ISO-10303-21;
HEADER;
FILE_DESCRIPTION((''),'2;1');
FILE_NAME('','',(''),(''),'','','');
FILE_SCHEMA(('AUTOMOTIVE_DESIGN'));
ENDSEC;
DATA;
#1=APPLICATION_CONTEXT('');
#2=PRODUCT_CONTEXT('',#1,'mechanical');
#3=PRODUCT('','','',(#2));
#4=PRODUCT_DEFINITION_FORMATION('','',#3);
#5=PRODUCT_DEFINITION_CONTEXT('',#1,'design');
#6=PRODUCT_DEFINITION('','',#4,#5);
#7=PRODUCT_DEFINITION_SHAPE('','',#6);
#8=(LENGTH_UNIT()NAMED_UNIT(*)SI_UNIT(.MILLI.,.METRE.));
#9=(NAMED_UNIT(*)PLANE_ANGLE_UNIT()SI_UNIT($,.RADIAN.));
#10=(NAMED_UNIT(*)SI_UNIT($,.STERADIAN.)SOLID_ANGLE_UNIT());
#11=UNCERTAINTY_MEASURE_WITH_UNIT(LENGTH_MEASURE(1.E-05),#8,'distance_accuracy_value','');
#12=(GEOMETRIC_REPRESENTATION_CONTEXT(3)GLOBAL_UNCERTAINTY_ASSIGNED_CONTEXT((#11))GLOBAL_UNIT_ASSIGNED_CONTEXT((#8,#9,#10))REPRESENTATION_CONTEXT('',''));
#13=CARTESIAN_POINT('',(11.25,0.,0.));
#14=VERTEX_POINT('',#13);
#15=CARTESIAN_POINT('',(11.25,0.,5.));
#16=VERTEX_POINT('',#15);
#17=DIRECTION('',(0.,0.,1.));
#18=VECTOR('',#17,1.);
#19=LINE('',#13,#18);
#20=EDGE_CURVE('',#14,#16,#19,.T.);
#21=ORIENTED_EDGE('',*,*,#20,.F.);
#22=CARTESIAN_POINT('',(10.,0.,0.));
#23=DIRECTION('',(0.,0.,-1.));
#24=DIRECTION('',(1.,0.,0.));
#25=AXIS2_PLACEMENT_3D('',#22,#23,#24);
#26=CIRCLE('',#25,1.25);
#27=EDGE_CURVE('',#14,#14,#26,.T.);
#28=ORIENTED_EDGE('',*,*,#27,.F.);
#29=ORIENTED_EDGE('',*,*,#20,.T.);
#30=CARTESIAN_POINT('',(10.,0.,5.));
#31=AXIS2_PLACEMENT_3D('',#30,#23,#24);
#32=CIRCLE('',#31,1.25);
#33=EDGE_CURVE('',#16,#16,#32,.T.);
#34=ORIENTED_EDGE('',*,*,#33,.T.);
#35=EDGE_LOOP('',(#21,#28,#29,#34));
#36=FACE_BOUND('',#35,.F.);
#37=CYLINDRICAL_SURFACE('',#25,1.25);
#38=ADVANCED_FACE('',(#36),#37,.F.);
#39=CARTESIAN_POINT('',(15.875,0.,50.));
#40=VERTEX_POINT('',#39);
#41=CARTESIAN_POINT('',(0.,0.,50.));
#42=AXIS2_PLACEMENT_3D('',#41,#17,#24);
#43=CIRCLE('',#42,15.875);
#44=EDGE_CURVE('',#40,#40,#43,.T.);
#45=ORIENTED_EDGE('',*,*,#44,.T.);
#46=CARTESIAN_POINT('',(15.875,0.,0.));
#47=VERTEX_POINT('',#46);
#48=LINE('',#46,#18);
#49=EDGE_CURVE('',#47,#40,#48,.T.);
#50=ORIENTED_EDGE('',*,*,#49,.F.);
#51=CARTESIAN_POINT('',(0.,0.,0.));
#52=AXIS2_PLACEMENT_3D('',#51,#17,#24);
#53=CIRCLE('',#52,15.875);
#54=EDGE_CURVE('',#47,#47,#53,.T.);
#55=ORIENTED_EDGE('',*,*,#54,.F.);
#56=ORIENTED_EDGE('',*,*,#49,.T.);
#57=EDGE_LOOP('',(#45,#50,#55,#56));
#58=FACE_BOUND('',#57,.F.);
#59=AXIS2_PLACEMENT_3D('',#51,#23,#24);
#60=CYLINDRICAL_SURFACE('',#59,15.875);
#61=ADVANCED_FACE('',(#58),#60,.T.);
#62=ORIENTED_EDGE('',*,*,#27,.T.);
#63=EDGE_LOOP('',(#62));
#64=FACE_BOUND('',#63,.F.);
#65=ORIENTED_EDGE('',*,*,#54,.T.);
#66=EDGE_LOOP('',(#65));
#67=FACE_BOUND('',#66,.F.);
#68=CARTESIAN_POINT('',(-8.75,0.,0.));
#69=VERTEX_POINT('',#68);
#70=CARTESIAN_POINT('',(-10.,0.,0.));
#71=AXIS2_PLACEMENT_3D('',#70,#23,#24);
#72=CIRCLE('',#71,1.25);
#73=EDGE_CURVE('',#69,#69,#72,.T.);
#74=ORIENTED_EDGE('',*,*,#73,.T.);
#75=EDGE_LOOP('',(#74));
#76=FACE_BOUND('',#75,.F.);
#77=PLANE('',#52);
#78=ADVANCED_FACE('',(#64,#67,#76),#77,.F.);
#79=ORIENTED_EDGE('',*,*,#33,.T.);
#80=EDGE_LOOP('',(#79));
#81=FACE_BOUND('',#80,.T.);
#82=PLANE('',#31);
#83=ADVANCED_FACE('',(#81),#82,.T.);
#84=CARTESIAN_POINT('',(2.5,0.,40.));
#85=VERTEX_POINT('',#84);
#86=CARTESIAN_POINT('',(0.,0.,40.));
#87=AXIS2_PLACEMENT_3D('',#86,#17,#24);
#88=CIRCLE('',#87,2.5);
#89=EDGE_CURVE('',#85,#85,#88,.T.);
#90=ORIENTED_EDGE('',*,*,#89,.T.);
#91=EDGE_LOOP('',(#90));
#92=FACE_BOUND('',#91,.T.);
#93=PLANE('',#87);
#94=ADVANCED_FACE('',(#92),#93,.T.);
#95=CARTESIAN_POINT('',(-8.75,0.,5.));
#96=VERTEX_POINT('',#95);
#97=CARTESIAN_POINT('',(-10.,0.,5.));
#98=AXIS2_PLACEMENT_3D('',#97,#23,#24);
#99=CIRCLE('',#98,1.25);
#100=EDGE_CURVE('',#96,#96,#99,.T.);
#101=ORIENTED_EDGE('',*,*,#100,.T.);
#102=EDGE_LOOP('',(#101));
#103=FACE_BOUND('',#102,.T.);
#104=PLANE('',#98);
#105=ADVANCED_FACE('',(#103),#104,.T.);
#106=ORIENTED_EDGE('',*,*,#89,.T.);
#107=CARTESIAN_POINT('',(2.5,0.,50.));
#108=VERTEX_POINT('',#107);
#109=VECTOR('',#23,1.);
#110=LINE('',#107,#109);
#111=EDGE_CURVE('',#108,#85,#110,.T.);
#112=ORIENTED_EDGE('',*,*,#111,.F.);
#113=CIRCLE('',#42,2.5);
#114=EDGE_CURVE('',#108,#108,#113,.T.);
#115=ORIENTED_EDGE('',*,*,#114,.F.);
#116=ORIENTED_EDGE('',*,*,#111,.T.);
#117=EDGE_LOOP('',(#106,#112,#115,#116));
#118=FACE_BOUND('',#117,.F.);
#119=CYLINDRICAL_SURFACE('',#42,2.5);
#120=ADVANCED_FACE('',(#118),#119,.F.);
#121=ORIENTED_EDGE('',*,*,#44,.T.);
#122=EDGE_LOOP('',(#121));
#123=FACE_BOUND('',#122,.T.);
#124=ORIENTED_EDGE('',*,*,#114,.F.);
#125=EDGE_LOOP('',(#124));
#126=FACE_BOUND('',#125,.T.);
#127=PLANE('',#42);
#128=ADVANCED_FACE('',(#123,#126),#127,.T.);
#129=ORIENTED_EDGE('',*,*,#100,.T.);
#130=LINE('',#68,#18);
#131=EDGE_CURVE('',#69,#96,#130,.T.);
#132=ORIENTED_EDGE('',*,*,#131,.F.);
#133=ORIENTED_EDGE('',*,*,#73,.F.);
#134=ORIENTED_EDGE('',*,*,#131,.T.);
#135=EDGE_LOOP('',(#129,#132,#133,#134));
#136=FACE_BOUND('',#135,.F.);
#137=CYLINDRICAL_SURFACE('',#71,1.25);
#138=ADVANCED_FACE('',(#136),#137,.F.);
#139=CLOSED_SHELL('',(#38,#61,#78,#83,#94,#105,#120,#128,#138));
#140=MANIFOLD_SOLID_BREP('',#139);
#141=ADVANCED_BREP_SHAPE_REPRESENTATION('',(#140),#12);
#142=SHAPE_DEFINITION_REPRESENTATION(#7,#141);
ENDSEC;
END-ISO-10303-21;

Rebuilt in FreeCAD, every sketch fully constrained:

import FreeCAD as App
import Part
import Sketcher
from FreeCAD import Vector
Q = App.Units.Quantity

doc = App.newDocument("Part")
body = doc.addObject("PartDesign::Body", "Body")

# Sketch on XY plane
sketch1 = body.newObject("Sketcher::SketchObject", "Sketch")
sketch1.AttachmentSupport = (doc.getObject("XY_Plane"), [""])
sketch1.MapMode = "FlatFace"
sketch1.addGeometry(Part.Circle(Vector(0, 0, 0), Vector(0, 0, 1), 15.875), False)
sketch1.addConstraint(Sketcher.Constraint("Coincident", 0, 3, -1, 1))
sketch1.addConstraint(Sketcher.Constraint("Diameter", 0, Q("31.75 mm")))
pad1 = body.newObject("PartDesign::Pad", "Pad")
pad1.Profile = sketch1
pad1.Length = 50

# Sketch on XY plane
sketch2 = body.newObject("Sketcher::SketchObject", "Sketch001")
sketch2.AttachmentSupport = (doc.getObject("XY_Plane"), [""])
sketch2.MapMode = "FlatFace"
sketch2.AttachmentOffset = App.Placement(Vector(0, 0, 50), App.Rotation())
sketch2.addGeometry(Part.Circle(Vector(0, 0, 0), Vector(0, 0, 1), 2.5), False)
sketch2.addConstraint(Sketcher.Constraint("Coincident", 0, 3, -1, 1))
sketch2.addConstraint(Sketcher.Constraint("Diameter", 0, Q("5 mm")))
pocket1 = body.newObject("PartDesign::Pocket", "Pocket")
pocket1.Profile = sketch2
pocket1.Length = 10

# Sketch on XY plane
sketch3 = body.newObject("Sketcher::SketchObject", "Sketch002")
sketch3.AttachmentSupport = (doc.getObject("XY_Plane"), [""])
sketch3.MapMode = "FlatFace"
sketch3.addGeometry(Part.Circle(Vector(10, 0, 0), Vector(0, 0, 1), 1.25), False)
sketch3.addGeometry(Part.Circle(Vector(-10, 0, 0), Vector(0, 0, 1), 1.25), False)
sketch3.addConstraint(Sketcher.Constraint("Equal", 0, 1))
sketch3.addConstraint(Sketcher.Constraint("Symmetric", 0, 3, 1, 3, -1, 1))
sketch3.addConstraint(Sketcher.Constraint("PointOnObject", 0, 3, -1))
sketch3.addConstraint(Sketcher.Constraint("Diameter", 0, Q("2.5 mm")))
sketch3.addConstraint(Sketcher.Constraint("DistanceX", -1, 1, 0, 3, Q("10 mm")))
pocket2 = body.newObject("PartDesign::Pocket", "Pocket001")
pocket2.Profile = sketch3
pocket2.Length = 5
pocket2.Reversed = True

doc.recompute()
